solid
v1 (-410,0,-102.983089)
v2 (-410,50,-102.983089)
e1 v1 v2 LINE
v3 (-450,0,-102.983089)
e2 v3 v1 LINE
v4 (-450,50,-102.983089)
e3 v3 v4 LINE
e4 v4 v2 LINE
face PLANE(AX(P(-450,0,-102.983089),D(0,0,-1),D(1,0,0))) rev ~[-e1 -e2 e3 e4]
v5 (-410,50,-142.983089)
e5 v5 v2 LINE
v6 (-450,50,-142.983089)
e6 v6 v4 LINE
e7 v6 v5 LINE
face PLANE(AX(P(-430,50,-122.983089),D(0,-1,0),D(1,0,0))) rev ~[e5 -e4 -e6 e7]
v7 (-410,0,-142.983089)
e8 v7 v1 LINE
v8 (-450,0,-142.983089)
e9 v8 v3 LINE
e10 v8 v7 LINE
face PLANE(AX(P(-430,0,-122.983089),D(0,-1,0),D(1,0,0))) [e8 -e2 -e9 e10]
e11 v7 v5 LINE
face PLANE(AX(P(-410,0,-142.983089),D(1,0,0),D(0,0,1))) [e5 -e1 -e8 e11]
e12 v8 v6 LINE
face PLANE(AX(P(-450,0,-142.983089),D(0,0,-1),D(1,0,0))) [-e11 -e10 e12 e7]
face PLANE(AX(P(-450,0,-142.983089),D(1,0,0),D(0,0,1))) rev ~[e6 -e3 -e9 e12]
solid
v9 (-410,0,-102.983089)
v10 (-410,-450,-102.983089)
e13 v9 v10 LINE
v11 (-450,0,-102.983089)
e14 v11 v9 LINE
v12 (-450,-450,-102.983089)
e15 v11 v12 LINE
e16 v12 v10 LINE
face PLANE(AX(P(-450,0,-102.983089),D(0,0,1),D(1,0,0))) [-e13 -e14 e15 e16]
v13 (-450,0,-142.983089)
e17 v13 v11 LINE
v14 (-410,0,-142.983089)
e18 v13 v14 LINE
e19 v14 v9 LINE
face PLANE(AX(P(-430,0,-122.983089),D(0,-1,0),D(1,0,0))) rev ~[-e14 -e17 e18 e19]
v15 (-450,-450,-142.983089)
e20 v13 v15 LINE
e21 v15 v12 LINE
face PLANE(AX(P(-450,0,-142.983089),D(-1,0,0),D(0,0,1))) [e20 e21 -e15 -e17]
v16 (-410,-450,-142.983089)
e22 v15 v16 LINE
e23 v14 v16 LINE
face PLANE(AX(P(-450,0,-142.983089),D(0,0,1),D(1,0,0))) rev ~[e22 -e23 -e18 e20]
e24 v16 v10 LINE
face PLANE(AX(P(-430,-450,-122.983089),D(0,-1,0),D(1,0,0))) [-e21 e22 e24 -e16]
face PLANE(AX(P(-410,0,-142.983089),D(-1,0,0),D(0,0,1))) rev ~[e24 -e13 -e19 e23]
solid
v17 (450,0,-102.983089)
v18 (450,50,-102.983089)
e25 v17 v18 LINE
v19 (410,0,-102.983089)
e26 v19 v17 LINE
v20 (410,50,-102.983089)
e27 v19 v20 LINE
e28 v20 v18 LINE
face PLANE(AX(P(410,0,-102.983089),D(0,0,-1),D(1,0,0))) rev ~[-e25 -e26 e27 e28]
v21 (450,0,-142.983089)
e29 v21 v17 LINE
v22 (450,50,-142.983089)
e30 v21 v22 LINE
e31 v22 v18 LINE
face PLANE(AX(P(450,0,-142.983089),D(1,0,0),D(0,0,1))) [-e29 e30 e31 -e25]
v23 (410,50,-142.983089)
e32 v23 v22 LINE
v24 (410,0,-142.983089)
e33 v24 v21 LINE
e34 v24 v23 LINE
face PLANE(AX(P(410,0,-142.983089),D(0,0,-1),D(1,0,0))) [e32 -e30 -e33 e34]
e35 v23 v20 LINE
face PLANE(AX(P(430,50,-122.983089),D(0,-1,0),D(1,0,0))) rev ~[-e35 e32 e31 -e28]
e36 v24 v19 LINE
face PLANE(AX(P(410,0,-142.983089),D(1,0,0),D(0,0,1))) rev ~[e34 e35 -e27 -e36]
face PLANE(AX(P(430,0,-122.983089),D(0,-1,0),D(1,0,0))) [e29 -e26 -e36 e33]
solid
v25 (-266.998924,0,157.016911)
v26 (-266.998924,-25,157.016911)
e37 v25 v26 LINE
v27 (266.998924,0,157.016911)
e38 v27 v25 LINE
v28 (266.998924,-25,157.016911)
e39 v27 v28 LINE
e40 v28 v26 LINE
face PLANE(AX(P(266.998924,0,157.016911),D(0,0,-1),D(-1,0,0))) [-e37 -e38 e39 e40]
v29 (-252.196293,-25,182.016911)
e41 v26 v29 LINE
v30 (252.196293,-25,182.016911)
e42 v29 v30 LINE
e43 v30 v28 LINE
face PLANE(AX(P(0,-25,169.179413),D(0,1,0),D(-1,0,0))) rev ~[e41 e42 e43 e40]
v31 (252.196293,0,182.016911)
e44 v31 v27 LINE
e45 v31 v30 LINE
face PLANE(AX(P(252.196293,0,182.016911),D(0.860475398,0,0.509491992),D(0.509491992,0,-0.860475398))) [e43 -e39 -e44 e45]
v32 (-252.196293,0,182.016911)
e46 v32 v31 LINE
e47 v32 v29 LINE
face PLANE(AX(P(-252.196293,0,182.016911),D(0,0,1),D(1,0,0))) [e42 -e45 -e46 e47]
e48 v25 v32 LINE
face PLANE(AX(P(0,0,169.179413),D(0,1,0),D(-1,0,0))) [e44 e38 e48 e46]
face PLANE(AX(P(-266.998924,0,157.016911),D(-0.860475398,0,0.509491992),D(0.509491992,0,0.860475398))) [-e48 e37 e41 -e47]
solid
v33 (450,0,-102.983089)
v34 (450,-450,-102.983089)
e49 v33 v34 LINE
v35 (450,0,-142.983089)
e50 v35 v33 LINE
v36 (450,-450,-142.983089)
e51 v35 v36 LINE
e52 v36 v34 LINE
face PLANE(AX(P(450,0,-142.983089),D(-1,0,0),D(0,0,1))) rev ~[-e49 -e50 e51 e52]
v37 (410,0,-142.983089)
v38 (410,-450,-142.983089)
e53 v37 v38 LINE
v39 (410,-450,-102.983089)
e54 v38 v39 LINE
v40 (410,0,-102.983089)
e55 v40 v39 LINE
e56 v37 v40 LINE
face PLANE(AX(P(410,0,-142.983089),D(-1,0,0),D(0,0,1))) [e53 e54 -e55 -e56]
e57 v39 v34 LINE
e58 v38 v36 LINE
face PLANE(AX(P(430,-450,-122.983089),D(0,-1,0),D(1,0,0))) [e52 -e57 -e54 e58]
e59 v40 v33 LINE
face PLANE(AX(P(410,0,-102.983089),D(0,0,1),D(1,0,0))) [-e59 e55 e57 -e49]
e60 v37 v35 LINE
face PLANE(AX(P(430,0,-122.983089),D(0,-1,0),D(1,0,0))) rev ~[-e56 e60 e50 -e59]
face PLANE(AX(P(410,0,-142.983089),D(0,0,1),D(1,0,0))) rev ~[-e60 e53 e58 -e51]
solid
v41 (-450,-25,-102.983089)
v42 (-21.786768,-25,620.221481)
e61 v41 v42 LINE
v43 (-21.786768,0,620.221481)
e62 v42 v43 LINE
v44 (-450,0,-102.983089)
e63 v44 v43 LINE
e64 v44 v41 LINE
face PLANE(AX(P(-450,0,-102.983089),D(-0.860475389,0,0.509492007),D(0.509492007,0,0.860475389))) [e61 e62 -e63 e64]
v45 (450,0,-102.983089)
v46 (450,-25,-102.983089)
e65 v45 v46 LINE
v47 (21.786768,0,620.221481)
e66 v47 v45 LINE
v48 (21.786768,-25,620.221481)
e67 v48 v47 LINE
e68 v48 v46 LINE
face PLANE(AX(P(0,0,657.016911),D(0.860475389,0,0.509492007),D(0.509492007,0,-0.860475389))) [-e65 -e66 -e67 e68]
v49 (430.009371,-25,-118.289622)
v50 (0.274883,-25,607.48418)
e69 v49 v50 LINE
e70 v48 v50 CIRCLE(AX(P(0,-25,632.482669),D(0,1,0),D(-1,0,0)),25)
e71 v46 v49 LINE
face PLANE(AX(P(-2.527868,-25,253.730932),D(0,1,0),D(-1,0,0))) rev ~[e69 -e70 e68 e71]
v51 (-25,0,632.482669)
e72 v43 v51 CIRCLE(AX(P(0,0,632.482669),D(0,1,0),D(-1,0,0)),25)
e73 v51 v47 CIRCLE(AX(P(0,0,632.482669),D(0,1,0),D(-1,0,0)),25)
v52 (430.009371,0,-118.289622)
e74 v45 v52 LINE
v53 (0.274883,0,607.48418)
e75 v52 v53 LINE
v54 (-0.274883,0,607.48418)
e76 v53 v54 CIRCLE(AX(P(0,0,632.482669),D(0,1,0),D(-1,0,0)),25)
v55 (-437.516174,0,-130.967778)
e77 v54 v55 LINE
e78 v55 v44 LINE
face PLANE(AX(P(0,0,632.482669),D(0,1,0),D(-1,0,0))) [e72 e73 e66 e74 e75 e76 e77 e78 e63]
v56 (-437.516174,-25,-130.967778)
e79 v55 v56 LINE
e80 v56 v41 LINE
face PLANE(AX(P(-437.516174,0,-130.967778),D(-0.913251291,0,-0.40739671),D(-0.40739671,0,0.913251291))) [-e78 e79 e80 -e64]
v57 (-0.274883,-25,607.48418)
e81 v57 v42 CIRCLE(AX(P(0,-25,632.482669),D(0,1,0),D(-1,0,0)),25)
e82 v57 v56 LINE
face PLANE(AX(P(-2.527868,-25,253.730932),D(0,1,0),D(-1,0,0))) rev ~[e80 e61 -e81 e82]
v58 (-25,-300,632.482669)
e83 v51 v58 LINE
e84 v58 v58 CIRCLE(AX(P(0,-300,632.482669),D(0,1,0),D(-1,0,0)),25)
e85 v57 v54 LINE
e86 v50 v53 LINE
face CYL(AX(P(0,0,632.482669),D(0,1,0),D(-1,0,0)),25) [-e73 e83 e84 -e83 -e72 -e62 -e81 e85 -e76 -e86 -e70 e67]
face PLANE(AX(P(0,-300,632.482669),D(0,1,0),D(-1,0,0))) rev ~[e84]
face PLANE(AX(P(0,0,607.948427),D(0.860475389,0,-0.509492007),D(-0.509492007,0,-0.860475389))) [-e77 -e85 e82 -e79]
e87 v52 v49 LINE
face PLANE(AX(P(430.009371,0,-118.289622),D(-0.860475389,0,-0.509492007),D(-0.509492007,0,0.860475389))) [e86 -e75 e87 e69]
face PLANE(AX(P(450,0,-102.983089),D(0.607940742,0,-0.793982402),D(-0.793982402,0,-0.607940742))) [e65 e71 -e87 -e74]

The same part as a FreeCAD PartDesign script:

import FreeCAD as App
import Part
import Sketcher
Q = App.Units.Quantity

doc = App.newDocument("Part")
body = doc.addObject("PartDesign::Body", "Body")
body.AllowCompound = True

# Sketch on XZ plane
sketch1 = body.newObject("Sketcher::SketchObject", "Sketch")
sketch1.AttachmentSupport = (doc.getObject("XZ_Plane"), [""])
sketch1.MapMode = "FlatFace"
sketch1.addGeometry([
    Part.LineSegment(App.Vector(-450, -103, 0), App.Vector(-450, -143, 0)),  # 0
    Part.LineSegment(App.Vector(-450, -143, 0), App.Vector(-410, -143, 0)),  # 1
    Part.LineSegment(App.Vector(-410, -143, 0), App.Vector(-410, -103, 0)),  # 2
    Part.LineSegment(App.Vector(-410, -103, 0), App.Vector(-450, -103, 0)),  # 3
    Part.LineSegment(App.Vector(410, -103, 0), App.Vector(410, -143, 0)),  # 4
    Part.LineSegment(App.Vector(410, -143, 0), App.Vector(450, -143, 0)),  # 5
    Part.LineSegment(App.Vector(450, -143, 0), App.Vector(450, -103, 0)),  # 6
    Part.LineSegment(App.Vector(450, -103, 0), App.Vector(410, -103, 0)),  # 7
], False)
sketch1.addConstraint([
    Sketcher.Constraint("Coincident", 0, 2, 1, 1),
    Sketcher.Constraint("Coincident", 1, 2, 2, 1),
    Sketcher.Constraint("Coincident", 2, 2, 3, 1),
    Sketcher.Constraint("Coincident", 3, 2, 0, 1),
    Sketcher.Constraint("Coincident", 4, 2, 5, 1),
    Sketcher.Constraint("Coincident", 5, 2, 6, 1),
    Sketcher.Constraint("Coincident", 6, 2, 7, 1),
    Sketcher.Constraint("Coincident", 7, 2, 4, 1),
    Sketcher.Constraint("Vertical", 0),
    Sketcher.Constraint("Horizontal", 1),
    Sketcher.Constraint("Vertical", 2),
    Sketcher.Constraint("Horizontal", 3),
    Sketcher.Constraint("Vertical", 4),
    Sketcher.Constraint("Horizontal", 5),
    Sketcher.Constraint("Vertical", 6),
    Sketcher.Constraint("Horizontal", 7),
    Sketcher.Constraint("Symmetric", 1, 2, 4, 2, -2),
    Sketcher.Constraint("Symmetric", 3, 2, 6, 2, -2),
    Sketcher.Constraint("Equal", 7, 0),
    Sketcher.Constraint("DistanceX", 1, 1, 1, 2, 40.0),
    Sketcher.Constraint("DistanceX", 0, 2, -1, 1, 450.0),
    Sketcher.Constraint("DistanceY", 0, 2, -1, 1, 142.983089),
])
pad1 = body.newObject("PartDesign::Pad", "Pad")
pad1.Profile = sketch1
pad1.Length = 450
body2 = doc.addObject("PartDesign::Body", "Body001")

# Sketch on XZ plane
sketch2 = body2.newObject("Sketcher::SketchObject", "Sketch001")
sketch2.AttachmentSupport = (doc.getObject("XZ_Plane001"), [""])
sketch2.MapMode = "FlatFace"
sketch2.addGeometry([
    Part.LineSegment(App.Vector(0, 657, 0), App.Vector(450, -103, 0)),  # 0
    Part.LineSegment(App.Vector(450, -103, 0), App.Vector(430, -118, 0)),  # 1
    Part.LineSegment(App.Vector(430, -118, 0), App.Vector(0, 608, 0)),  # 2
    Part.LineSegment(App.Vector(0, 608, 0), App.Vector(-438, -131, 0)),  # 3
    Part.LineSegment(App.Vector(-438, -131, 0), App.Vector(-450, -103, 0)),  # 4
    Part.LineSegment(App.Vector(-450, -103, 0), App.Vector(0, 657, 0)),  # 5
], False)
sketch2.addConstraint([
    Sketcher.Constraint("Coincident", 0, 2, 1, 1),
    Sketcher.Constraint("Coincident", 1, 2, 2, 1),
    Sketcher.Constraint("Coincident", 2, 2, 3, 1),
    Sketcher.Constraint("Coincident", 3, 2, 4, 1),
    Sketcher.Constraint("Coincident", 4, 2, 5, 1),
    Sketcher.Constraint("Coincident", 5, 2, 0, 1),
    Sketcher.Constraint("Symmetric", 0, 2, 4, 2, -2),
    Sketcher.Constraint("PointOnObject", 2, 2, -2),
    Sketcher.Constraint("PointOnObject", 5, 2, -2),
    Sketcher.Constraint("Parallel", 0, 2),
    Sketcher.Constraint("Parallel", 3, 5),
    Sketcher.Constraint("DistanceX", -1, 1, 0, 2, 450.0),
    Sketcher.Constraint("DistanceY", 0, 2, 5, 2, 760.0),
    Sketcher.Constraint("DistanceY", 0, 2, -1, 1, 102.983089),
    Sketcher.Constraint("DistanceX", -1, 1, 1, 2, 430.009371),
    Sketcher.Constraint("DistanceY", 1, 2, -1, 1, 118.289622),
    Sketcher.Constraint("DistanceY", 3, 2, -1, 1, 130.967778),
])
pad2 = body2.newObject("PartDesign::Pad", "Pad001")
pad2.Profile = sketch2
pad2.Length = 25

# Sketch on XZ plane
sketch3 = body2.newObject("Sketcher::SketchObject", "Sketch002")
sketch3.AttachmentSupport = (doc.getObject("XZ_Plane001"), [""])
sketch3.MapMode = "FlatFace"
sketch3.addGeometry(Part.Circle(App.Vector(0, 632, 0), App.Vector(0, 0, 1), 25), False)
sketch3.addConstraint([
    Sketcher.Constraint("PointOnObject", 0, 3, -2),
    Sketcher.Constraint("Diameter", 0, 50.0),
    Sketcher.Constraint("DistanceY", -1, 1, 0, 3, 632.482669),
])
pad3 = body2.newObject("PartDesign::Pad", "Pad002")
pad3.Profile = sketch3
pad3.Length = 300
body3 = doc.addObject("PartDesign::Body", "Body002")
body3.AllowCompound = True

# Sketch on XZ plane
sketch4 = body3.newObject("Sketcher::SketchObject", "Sketch003")
sketch4.AttachmentSupport = (doc.getObject("XZ_Plane002"), [""])
sketch4.MapMode = "FlatFace"
sketch4.addGeometry([
    Part.LineSegment(App.Vector(-450, -103, 0), App.Vector(-450, -143, 0)),  # 0
    Part.LineSegment(App.Vector(-450, -143, 0), App.Vector(-410, -143, 0)),  # 1
    Part.LineSegment(App.Vector(-410, -143, 0), App.Vector(-410, -103, 0)),  # 2
    Part.LineSegment(App.Vector(-410, -103, 0), App.Vector(-450, -103, 0)),  # 3
    Part.LineSegment(App.Vector(410, -103, 0), App.Vector(410, -143, 0)),  # 4
    Part.LineSegment(App.Vector(410, -143, 0), App.Vector(450, -143, 0)),  # 5
    Part.LineSegment(App.Vector(450, -143, 0), App.Vector(450, -103, 0)),  # 6
    Part.LineSegment(App.Vector(450, -103, 0), App.Vector(410, -103, 0)),  # 7
], False)
sketch4.addConstraint([
    Sketcher.Constraint("Coincident", 0, 2, 1, 1),
    Sketcher.Constraint("Coincident", 1, 2, 2, 1),
    Sketcher.Constraint("Coincident", 2, 2, 3, 1),
    Sketcher.Constraint("Coincident", 3, 2, 0, 1),
    Sketcher.Constraint("Coincident", 4, 2, 5, 1),
    Sketcher.Constraint("Coincident", 5, 2, 6, 1),
    Sketcher.Constraint("Coincident", 6, 2, 7, 1),
    Sketcher.Constraint("Coincident", 7, 2, 4, 1),
    Sketcher.Constraint("Vertical", 0),
    Sketcher.Constraint("Horizontal", 1),
    Sketcher.Constraint("Vertical", 2),
    Sketcher.Constraint("Horizontal", 3),
    Sketcher.Constraint("Vertical", 4),
    Sketcher.Constraint("Horizontal", 5),
    Sketcher.Constraint("Vertical", 6),
    Sketcher.Constraint("Horizontal", 7),
    Sketcher.Constraint("Symmetric", 1, 2, 4, 2, -2),
    Sketcher.Constraint("Symmetric", 3, 2, 6, 2, -2),
    Sketcher.Constraint("Equal", 7, 0),
    Sketcher.Constraint("DistanceX", 1, 1, 1, 2, 40.0),
    Sketcher.Constraint("DistanceX", 0, 2, -1, 1, 450.0),
    Sketcher.Constraint("DistanceY", 0, 2, -1, 1, 142.983089),
])
pad4 = body3.newObject("PartDesign::Pad", "Pad003")
pad4.Profile = sketch4
pad4.Length = 50
pad4.Reversed = True
body4 = doc.addObject("PartDesign::Body", "Body003")

# Sketch on XZ plane
sketch5 = body4.newObject("Sketcher::SketchObject", "Sketch004")
sketch5.AttachmentSupport = (doc.getObject("XZ_Plane003"), [""])
sketch5.MapMode = "FlatFace"
sketch5.addGeometry([
    Part.LineSegment(App.Vector(252, 182, 0), App.Vector(267, 157, 0)),
    Part.LineSegment(App.Vector(267, 157, 0), App.Vector(-267, 157, 0)),
    Part.LineSegment(App.Vector(-267, 157, 0), App.Vector(-252, 182, 0)),
    Part.LineSegment(App.Vector(-252, 182, 0), App.Vector(252, 182, 0)),
], False)
sketch5.addConstraint([
    Sketcher.Constraint("Coincident", 0, 2, 1, 1),
    Sketcher.Constraint("Coincident", 1, 2, 2, 1),
    Sketcher.Constraint("Coincident", 2, 2, 3, 1),
    Sketcher.Constraint("Coincident", 3, 2, 0, 1),
    Sketcher.Constraint("Horizontal", 1),
    Sketcher.Constraint("Horizontal", 3),
    Sketcher.Constraint("Equal", 0, 2),
    Sketcher.Constraint("DistanceY", 1, 2, 2, 2, 25.0),
    Sketcher.Constraint("Angle", 0, Q("-59.370002 deg")),
    Sketcher.Constraint("DistanceX", 1, 2, 1, 1, 533.997848),
    Sketcher.Constraint("DistanceY", -1, 1, 0, 2, 157.016911),
    Sketcher.Constraint("DistanceX", -1, 1, 0, 2, 266.998924),
])
pad5 = body4.newObject("PartDesign::Pad", "Pad004")
pad5.Profile = sketch5
pad5.Length = 25

doc.recompute()
